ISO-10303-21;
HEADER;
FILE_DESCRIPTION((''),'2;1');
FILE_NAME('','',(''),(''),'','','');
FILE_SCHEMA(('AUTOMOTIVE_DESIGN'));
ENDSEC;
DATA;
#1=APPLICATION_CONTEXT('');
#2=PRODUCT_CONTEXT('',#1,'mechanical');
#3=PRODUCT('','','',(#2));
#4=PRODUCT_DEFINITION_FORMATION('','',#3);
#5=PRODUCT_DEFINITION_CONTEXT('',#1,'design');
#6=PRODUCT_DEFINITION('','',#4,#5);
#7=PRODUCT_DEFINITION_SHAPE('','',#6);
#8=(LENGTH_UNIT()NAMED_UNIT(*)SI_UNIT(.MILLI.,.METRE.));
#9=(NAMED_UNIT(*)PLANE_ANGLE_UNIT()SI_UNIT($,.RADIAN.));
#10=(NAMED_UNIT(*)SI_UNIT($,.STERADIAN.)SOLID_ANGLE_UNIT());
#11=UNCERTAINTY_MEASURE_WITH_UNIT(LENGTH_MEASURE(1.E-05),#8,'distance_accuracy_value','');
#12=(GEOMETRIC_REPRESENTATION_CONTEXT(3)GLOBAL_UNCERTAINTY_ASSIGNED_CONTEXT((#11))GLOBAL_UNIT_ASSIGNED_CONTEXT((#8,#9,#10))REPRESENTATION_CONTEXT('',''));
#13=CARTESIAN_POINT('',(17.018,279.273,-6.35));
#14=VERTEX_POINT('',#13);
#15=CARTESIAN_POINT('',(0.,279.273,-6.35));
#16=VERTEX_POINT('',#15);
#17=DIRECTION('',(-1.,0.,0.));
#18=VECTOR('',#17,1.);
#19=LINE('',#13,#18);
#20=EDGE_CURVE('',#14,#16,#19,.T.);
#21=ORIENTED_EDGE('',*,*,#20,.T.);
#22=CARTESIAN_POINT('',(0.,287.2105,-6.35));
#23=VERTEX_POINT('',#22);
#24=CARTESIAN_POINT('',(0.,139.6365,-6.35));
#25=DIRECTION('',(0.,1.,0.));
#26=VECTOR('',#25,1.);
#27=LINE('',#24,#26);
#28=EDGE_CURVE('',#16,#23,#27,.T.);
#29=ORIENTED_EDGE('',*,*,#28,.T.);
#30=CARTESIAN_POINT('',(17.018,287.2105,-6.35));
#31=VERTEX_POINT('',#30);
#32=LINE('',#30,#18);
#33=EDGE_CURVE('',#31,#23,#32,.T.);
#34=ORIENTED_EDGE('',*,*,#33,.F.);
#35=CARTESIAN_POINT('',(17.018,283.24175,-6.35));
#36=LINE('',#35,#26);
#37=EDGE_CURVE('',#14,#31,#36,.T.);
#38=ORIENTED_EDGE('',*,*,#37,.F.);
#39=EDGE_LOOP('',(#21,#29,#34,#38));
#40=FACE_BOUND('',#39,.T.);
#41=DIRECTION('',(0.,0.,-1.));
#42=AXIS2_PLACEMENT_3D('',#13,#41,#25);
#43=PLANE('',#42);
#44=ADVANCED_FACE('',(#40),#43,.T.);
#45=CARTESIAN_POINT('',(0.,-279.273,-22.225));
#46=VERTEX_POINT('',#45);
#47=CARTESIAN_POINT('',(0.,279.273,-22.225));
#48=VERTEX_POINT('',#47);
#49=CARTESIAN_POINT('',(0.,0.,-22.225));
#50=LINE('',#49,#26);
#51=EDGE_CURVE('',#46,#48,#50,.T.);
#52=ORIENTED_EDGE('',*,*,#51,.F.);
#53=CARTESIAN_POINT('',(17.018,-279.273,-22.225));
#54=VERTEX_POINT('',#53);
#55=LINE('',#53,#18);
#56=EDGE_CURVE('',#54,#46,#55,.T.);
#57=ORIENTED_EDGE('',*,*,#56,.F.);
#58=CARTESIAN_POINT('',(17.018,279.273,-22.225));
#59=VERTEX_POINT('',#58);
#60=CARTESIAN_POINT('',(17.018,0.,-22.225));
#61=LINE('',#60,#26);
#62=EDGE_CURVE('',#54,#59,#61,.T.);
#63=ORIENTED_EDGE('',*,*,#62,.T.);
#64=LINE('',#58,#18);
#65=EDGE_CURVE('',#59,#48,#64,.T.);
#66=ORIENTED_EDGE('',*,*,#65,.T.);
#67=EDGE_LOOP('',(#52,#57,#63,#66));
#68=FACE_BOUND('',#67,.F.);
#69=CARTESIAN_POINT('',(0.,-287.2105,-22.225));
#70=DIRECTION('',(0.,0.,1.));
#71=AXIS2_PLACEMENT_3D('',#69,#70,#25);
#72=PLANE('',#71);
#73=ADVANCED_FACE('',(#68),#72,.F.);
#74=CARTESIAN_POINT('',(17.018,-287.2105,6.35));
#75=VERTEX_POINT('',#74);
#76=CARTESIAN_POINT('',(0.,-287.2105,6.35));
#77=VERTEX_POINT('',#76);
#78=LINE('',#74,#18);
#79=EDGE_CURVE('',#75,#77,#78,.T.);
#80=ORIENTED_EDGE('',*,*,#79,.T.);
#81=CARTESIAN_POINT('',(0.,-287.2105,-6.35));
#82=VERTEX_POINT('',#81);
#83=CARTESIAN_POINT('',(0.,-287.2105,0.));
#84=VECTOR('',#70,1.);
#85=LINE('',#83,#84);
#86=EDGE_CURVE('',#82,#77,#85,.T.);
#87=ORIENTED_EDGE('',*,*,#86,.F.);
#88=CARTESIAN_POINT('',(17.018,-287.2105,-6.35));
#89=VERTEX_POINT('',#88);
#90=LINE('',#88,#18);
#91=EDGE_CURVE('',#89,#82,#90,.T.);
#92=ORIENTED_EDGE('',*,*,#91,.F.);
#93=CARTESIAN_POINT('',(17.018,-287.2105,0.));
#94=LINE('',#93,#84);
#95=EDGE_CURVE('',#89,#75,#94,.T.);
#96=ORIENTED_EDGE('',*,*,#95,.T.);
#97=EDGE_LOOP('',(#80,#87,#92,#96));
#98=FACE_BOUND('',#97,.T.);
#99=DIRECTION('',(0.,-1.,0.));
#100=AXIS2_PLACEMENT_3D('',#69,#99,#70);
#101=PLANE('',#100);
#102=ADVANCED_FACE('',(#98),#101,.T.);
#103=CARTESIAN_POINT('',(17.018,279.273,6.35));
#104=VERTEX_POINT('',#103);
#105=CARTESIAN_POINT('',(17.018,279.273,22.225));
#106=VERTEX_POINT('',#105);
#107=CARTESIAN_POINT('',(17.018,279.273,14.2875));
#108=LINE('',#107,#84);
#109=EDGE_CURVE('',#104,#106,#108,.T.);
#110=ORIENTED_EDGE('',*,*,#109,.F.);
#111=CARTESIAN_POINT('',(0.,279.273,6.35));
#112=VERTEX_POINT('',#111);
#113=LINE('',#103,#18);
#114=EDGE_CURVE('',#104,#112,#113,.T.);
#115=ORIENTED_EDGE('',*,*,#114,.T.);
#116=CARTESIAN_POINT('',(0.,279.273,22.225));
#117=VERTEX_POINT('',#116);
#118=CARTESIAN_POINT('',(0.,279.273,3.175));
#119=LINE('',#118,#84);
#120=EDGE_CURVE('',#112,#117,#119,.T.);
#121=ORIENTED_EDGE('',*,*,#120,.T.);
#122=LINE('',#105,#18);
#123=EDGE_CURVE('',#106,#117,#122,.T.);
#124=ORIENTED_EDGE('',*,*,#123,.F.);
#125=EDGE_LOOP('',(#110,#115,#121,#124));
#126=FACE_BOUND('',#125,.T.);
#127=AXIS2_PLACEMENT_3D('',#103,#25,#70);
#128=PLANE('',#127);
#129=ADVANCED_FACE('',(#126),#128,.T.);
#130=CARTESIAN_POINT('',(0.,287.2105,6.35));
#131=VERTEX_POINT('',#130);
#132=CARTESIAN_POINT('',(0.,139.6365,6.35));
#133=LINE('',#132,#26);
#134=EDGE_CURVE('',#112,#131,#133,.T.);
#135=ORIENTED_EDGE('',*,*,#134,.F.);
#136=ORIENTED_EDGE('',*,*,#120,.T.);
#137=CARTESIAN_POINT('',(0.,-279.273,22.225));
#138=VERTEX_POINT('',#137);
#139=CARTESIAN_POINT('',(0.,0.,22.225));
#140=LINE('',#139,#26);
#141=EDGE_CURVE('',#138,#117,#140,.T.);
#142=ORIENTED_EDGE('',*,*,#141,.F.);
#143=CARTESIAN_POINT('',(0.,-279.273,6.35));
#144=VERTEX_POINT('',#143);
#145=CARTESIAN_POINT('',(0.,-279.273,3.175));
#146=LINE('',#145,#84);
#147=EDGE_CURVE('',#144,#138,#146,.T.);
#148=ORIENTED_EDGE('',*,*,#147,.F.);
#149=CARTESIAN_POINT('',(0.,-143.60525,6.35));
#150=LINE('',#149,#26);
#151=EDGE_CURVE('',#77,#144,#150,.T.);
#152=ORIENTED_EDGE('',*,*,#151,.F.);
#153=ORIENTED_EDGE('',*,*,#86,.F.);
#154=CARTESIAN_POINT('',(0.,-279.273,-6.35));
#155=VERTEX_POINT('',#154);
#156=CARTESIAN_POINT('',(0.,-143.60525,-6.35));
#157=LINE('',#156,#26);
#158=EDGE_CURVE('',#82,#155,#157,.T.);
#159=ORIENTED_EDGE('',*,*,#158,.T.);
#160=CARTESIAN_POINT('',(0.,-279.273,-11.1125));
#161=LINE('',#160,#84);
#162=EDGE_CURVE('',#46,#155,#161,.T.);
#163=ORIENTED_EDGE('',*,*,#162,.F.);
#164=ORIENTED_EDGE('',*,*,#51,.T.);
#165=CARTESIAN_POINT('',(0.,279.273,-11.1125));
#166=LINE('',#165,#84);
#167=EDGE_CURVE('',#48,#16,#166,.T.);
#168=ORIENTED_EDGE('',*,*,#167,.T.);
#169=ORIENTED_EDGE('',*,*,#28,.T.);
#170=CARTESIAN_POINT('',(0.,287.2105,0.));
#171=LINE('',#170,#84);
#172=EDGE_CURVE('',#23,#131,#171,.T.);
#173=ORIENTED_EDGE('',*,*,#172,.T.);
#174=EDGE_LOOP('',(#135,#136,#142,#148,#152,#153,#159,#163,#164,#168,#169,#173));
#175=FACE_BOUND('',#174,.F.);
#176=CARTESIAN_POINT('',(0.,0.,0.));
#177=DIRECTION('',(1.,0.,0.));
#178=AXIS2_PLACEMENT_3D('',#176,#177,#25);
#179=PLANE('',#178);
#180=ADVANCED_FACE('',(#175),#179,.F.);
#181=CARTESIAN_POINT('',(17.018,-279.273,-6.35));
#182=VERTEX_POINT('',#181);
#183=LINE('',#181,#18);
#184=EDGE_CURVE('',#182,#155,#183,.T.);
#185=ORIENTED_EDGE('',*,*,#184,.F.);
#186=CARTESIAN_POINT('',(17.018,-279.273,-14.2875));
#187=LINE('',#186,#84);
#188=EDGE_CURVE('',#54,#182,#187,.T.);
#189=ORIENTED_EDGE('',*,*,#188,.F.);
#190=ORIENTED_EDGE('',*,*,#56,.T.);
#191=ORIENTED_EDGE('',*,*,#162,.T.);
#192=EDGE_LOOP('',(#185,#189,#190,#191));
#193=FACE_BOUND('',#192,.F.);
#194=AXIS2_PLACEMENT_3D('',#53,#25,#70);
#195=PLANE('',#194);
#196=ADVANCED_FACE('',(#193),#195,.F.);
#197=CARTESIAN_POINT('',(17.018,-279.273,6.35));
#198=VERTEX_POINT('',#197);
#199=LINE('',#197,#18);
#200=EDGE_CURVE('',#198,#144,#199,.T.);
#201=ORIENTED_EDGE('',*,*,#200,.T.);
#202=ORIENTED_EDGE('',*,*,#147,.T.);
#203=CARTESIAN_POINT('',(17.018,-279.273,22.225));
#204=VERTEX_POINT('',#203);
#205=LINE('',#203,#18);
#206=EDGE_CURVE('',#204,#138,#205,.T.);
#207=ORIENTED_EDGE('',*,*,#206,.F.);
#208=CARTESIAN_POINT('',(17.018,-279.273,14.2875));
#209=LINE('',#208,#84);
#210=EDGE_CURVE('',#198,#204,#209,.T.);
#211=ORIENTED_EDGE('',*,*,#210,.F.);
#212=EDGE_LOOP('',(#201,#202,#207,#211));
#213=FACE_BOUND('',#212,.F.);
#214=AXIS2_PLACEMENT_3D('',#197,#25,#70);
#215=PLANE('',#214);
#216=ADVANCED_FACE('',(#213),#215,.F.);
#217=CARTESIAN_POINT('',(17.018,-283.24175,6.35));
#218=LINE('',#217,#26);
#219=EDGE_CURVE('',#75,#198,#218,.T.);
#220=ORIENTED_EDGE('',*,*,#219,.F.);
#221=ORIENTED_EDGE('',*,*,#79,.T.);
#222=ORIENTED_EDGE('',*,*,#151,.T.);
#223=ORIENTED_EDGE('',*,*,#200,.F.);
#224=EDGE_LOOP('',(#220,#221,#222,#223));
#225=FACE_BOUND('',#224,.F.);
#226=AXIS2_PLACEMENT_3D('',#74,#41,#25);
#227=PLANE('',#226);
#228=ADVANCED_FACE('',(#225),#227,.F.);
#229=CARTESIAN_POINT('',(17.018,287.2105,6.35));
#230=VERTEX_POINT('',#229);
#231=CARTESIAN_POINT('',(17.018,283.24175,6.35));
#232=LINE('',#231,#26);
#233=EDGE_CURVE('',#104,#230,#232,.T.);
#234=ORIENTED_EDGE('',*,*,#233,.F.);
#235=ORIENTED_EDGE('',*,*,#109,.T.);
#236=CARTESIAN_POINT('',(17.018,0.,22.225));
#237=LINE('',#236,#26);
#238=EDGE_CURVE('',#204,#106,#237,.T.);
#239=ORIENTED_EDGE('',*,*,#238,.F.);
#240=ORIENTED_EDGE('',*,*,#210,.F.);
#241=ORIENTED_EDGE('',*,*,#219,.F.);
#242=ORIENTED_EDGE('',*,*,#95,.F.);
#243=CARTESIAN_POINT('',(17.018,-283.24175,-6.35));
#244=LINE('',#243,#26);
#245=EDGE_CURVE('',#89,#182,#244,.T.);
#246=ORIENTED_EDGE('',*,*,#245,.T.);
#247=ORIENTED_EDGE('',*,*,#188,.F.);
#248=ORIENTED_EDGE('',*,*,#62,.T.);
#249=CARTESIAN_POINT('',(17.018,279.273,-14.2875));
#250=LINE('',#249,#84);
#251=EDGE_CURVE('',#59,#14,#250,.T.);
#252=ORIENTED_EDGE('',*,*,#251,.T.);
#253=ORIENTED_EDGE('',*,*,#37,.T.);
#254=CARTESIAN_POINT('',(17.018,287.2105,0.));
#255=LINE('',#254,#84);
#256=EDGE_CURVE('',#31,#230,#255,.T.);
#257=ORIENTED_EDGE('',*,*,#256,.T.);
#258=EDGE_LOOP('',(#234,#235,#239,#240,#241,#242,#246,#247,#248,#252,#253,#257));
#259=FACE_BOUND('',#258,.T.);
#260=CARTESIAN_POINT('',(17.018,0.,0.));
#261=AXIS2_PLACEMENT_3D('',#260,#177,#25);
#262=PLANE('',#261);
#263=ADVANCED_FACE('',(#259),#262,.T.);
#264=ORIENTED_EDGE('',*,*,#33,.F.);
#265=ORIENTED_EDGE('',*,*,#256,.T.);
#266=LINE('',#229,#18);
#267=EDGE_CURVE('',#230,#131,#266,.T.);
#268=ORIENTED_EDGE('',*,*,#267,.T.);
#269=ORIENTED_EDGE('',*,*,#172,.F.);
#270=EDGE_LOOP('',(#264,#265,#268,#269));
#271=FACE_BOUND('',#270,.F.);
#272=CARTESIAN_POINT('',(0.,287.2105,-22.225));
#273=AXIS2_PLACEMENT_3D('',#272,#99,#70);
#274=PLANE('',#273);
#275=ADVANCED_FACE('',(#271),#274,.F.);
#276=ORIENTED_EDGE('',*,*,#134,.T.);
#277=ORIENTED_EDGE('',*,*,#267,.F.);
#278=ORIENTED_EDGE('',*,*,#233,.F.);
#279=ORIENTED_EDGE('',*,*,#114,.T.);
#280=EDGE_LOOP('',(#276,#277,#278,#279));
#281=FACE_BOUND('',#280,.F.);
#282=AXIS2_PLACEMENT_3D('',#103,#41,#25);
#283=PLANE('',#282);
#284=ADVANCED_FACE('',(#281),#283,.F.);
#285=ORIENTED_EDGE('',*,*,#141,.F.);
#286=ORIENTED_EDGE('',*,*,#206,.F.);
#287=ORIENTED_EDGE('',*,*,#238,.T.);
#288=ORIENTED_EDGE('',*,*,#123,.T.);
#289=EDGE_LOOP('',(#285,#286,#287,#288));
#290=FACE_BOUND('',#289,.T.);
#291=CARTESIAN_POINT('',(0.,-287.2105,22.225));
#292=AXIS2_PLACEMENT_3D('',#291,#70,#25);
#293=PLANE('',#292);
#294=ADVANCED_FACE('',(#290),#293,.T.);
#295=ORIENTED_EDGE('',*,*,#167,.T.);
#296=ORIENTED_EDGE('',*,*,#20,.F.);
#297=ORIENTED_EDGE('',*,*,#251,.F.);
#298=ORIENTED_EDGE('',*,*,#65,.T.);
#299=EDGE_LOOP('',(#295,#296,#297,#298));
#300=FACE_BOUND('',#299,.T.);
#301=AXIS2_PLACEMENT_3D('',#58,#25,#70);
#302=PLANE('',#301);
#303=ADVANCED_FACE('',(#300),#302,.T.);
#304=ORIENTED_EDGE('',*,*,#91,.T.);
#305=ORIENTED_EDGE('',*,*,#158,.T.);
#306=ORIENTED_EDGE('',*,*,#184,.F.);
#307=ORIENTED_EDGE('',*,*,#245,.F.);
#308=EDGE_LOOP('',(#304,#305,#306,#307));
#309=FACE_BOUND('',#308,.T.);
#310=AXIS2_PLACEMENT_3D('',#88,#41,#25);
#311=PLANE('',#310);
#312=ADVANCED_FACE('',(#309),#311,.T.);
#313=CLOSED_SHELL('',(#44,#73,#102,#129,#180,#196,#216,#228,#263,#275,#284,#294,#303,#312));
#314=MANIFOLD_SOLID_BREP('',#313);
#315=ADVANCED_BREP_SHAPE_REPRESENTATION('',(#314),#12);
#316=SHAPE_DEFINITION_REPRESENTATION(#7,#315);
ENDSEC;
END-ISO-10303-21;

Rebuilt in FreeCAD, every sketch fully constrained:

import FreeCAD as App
import Part
import Sketcher

V = App.Vector
Q = App.Units.Quantity

doc = App.newDocument("Part")
body = doc.addObject("PartDesign::Body", "Body")

sketch1 = body.newObject("Sketcher::SketchObject", "Sketch")
sketch1.AttachmentSupport = (doc.getObject("YZ_Plane"), [""])
sketch1.MapMode = "FlatFace"
sketch1.addGeometry(Part.LineSegment(V(-287, 22, 0), V(-287, -22, 0)), False)
sketch1.addGeometry(Part.LineSegment(V(-287, -22, 0), V(287, -22, 0)), False)
sketch1.addGeometry(Part.LineSegment(V(287, -22, 0), V(287, 22, 0)), False)
sketch1.addGeometry(Part.LineSegment(V(287, 22, 0), V(-287, 22, 0)), False)
sketch1.addConstraint(Sketcher.Constraint("Coincident", 0, 2, 1, 1))
sketch1.addConstraint(Sketcher.Constraint("Coincident", 1, 2, 2, 1))
sketch1.addConstraint(Sketcher.Constraint("Coincident", 2, 2, 3, 1))
sketch1.addConstraint(Sketcher.Constraint("Coincident", 3, 2, 0, 1))
sketch1.addConstraint(Sketcher.Constraint("Vertical", 0))
sketch1.addConstraint(Sketcher.Constraint("Horizontal", 1))
sketch1.addConstraint(Sketcher.Constraint("Vertical", 2))
sketch1.addConstraint(Sketcher.Constraint("Horizontal", 3))
sketch1.addConstraint(Sketcher.Constraint("Symmetric", 0, 2, 2, 2, -1, 1))
sketch1.addConstraint(Sketcher.Constraint("DistanceY", 0, 2, 0, 1, Q("1.75 in")))
sketch1.addConstraint(Sketcher.Constraint("DistanceX", 1, 1, 1, 2, Q("22.615 in")))
pad1 = body.newObject("PartDesign::Pad", "Pad")
pad1.Profile = sketch1
pad1.Length = Q("0.67 in")

sketch2 = body.newObject("Sketcher::SketchObject", "Sketch001")
sketch2.AttachmentSupport = (doc.getObject("YZ_Plane"), [""])
sketch2.MapMode = "FlatFace"
sketch2.AttachmentOffset = App.Placement(V(0, 0, 0.67 * 25.4), App.Rotation())
sketch2.addGeometry(Part.LineSegment(V(-287, 22, 0), V(-287, 6, 0)), False)
sketch2.addGeometry(Part.LineSegment(V(-287, 6, 0), V(-279, 6, 0)), False)
sketch2.addGeometry(Part.LineSegment(V(-279, 6, 0), V(-279, 22, 0)), False)
sketch2.addGeometry(Part.LineSegment(V(-279, 22, 0), V(-287, 22, 0)), False)
sketch2.addGeometry(Part.LineSegment(V(-287, -6, 0), V(-287, -22, 0)), False)
sketch2.addGeometry(Part.LineSegment(V(-287, -22, 0), V(-279, -22, 0)), False)
sketch2.addGeometry(Part.LineSegment(V(-279, -22, 0), V(-279, -6, 0)), False)
sketch2.addGeometry(Part.LineSegment(V(-279, -6, 0), V(-287, -6, 0)), False)
sketch2.addGeometry(Part.LineSegment(V(279, 22, 0), V(279, 6, 0)), False)
sketch2.addGeometry(Part.LineSegment(V(279, 6, 0), V(287, 6, 0)), False)
sketch2.addGeometry(Part.LineSegment(V(287, 6, 0), V(287, 22, 0)), False)
sketch2.addGeometry(Part.LineSegment(V(287, 22, 0), V(279, 22, 0)), False)
sketch2.addGeometry(Part.LineSegment(V(279, -6, 0), V(279, -22, 0)), False)
sketch2.addGeometry(Part.LineSegment(V(279, -22, 0), V(287, -22, 0)), False)
sketch2.addGeometry(Part.LineSegment(V(287, -22, 0), V(287, -6, 0)), False)
sketch2.addGeometry(Part.LineSegment(V(287, -6, 0), V(279, -6, 0)), False)
sketch2.addConstraint(Sketcher.Constraint("Coincident", 0, 2, 1, 1))
sketch2.addConstraint(Sketcher.Constraint("Coincident", 1, 2, 2, 1))
sketch2.addConstraint(Sketcher.Constraint("Coincident", 2, 2, 3, 1))
sketch2.addConstraint(Sketcher.Constraint("Coincident", 3, 2, 0, 1))
sketch2.addConstraint(Sketcher.Constraint("Coincident", 4, 2, 5, 1))
sketch2.addConstraint(Sketcher.Constraint("Coincident", 5, 2, 6, 1))
sketch2.addConstraint(Sketcher.Constraint("Coincident", 6, 2, 7, 1))
sketch2.addConstraint(Sketcher.Constraint("Coincident", 7, 2, 4, 1))
sketch2.addConstraint(Sketcher.Constraint("Coincident", 8, 2, 9, 1))
sketch2.addConstraint(Sketcher.Constraint("Coincident", 9, 2, 10, 1))
sketch2.addConstraint(Sketcher.Constraint("Coincident", 10, 2, 11, 1))
sketch2.addConstraint(Sketcher.Constraint("Coincident", 11, 2, 8, 1))
sketch2.addConstraint(Sketcher.Constraint("Coincident", 12, 2, 13, 1))
sketch2.addConstraint(Sketcher.Constraint("Coincident", 13, 2, 14, 1))
sketch2.addConstraint(Sketcher.Constraint("Coincident", 14, 2, 15, 1))
sketch2.addConstraint(Sketcher.Constraint("Coincident", 15, 2, 12, 1))
sketch2.addConstraint(Sketcher.Constraint("Vertical", 0))
sketch2.addConstraint(Sketcher.Constraint("Horizontal", 1))
sketch2.addConstraint(Sketcher.Constraint("Vertical", 2))
sketch2.addConstraint(Sketcher.Constraint("Horizontal", 3))
sketch2.addConstraint(Sketcher.Constraint("Vertical", 4))
sketch2.addConstraint(Sketcher.Constraint("Horizontal", 5))
sketch2.addConstraint(Sketcher.Constraint("Vertical", 6))
sketch2.addConstraint(Sketcher.Constraint("Horizontal", 7))
sketch2.addConstraint(Sketcher.Constraint("Vertical", 8))
sketch2.addConstraint(Sketcher.Constraint("Horizontal", 9))
sketch2.addConstraint(Sketcher.Constraint("Vertical", 10))
sketch2.addConstraint(Sketcher.Constraint("Horizontal", 11))
sketch2.addConstraint(Sketcher.Constraint("Vertical", 12))
sketch2.addConstraint(Sketcher.Constraint("Horizontal", 13))
sketch2.addConstraint(Sketcher.Constraint("Vertical", 14))
sketch2.addConstraint(Sketcher.Constraint("Horizontal", 15))
sketch2.addConstraint(Sketcher.Constraint("Symmetric", 6, 2, 8, 2, -1, 1))
sketch2.addConstraint(Sketcher.Constraint("Symmetric", 4, 2, 10, 2, -1, 1))
sketch2.addConstraint(Sketcher.Constraint("Symmetric", 2, 2, 12, 2, -1, 1))
sketch2.addConstraint(Sketcher.Constraint("Symmetric", 0, 2, 14, 2, -1, 1))
sketch2.addConstraint(Sketcher.Constraint("Symmetric", 1, 2, 8, 2, -2))
sketch2.addConstraint(Sketcher.Constraint("Symmetric", 3, 2, 10, 2, -2))
sketch2.addConstraint(Sketcher.Constraint("DistanceY", 6, 2, 1, 2, Q("0.5 in")))
sketch2.addConstraint(Sketcher.Constraint("DistanceX", 1, 1, 1, 2, Q("0.3125 in")))
sketch2.addConstraint(Sketcher.Constraint("DistanceY", 0, 2, 0, 1, Q("0.625 in")))
sketch2.addConstraint(Sketcher.Constraint("DistanceX", 1, 2, 8, 2, Q("21.99 in")))
pocket1 = body.newObject("PartDesign::Pocket", "Pocket")
pocket1.Profile = sketch2
pocket1.Length = Q("1 in")

doc.recompute()
